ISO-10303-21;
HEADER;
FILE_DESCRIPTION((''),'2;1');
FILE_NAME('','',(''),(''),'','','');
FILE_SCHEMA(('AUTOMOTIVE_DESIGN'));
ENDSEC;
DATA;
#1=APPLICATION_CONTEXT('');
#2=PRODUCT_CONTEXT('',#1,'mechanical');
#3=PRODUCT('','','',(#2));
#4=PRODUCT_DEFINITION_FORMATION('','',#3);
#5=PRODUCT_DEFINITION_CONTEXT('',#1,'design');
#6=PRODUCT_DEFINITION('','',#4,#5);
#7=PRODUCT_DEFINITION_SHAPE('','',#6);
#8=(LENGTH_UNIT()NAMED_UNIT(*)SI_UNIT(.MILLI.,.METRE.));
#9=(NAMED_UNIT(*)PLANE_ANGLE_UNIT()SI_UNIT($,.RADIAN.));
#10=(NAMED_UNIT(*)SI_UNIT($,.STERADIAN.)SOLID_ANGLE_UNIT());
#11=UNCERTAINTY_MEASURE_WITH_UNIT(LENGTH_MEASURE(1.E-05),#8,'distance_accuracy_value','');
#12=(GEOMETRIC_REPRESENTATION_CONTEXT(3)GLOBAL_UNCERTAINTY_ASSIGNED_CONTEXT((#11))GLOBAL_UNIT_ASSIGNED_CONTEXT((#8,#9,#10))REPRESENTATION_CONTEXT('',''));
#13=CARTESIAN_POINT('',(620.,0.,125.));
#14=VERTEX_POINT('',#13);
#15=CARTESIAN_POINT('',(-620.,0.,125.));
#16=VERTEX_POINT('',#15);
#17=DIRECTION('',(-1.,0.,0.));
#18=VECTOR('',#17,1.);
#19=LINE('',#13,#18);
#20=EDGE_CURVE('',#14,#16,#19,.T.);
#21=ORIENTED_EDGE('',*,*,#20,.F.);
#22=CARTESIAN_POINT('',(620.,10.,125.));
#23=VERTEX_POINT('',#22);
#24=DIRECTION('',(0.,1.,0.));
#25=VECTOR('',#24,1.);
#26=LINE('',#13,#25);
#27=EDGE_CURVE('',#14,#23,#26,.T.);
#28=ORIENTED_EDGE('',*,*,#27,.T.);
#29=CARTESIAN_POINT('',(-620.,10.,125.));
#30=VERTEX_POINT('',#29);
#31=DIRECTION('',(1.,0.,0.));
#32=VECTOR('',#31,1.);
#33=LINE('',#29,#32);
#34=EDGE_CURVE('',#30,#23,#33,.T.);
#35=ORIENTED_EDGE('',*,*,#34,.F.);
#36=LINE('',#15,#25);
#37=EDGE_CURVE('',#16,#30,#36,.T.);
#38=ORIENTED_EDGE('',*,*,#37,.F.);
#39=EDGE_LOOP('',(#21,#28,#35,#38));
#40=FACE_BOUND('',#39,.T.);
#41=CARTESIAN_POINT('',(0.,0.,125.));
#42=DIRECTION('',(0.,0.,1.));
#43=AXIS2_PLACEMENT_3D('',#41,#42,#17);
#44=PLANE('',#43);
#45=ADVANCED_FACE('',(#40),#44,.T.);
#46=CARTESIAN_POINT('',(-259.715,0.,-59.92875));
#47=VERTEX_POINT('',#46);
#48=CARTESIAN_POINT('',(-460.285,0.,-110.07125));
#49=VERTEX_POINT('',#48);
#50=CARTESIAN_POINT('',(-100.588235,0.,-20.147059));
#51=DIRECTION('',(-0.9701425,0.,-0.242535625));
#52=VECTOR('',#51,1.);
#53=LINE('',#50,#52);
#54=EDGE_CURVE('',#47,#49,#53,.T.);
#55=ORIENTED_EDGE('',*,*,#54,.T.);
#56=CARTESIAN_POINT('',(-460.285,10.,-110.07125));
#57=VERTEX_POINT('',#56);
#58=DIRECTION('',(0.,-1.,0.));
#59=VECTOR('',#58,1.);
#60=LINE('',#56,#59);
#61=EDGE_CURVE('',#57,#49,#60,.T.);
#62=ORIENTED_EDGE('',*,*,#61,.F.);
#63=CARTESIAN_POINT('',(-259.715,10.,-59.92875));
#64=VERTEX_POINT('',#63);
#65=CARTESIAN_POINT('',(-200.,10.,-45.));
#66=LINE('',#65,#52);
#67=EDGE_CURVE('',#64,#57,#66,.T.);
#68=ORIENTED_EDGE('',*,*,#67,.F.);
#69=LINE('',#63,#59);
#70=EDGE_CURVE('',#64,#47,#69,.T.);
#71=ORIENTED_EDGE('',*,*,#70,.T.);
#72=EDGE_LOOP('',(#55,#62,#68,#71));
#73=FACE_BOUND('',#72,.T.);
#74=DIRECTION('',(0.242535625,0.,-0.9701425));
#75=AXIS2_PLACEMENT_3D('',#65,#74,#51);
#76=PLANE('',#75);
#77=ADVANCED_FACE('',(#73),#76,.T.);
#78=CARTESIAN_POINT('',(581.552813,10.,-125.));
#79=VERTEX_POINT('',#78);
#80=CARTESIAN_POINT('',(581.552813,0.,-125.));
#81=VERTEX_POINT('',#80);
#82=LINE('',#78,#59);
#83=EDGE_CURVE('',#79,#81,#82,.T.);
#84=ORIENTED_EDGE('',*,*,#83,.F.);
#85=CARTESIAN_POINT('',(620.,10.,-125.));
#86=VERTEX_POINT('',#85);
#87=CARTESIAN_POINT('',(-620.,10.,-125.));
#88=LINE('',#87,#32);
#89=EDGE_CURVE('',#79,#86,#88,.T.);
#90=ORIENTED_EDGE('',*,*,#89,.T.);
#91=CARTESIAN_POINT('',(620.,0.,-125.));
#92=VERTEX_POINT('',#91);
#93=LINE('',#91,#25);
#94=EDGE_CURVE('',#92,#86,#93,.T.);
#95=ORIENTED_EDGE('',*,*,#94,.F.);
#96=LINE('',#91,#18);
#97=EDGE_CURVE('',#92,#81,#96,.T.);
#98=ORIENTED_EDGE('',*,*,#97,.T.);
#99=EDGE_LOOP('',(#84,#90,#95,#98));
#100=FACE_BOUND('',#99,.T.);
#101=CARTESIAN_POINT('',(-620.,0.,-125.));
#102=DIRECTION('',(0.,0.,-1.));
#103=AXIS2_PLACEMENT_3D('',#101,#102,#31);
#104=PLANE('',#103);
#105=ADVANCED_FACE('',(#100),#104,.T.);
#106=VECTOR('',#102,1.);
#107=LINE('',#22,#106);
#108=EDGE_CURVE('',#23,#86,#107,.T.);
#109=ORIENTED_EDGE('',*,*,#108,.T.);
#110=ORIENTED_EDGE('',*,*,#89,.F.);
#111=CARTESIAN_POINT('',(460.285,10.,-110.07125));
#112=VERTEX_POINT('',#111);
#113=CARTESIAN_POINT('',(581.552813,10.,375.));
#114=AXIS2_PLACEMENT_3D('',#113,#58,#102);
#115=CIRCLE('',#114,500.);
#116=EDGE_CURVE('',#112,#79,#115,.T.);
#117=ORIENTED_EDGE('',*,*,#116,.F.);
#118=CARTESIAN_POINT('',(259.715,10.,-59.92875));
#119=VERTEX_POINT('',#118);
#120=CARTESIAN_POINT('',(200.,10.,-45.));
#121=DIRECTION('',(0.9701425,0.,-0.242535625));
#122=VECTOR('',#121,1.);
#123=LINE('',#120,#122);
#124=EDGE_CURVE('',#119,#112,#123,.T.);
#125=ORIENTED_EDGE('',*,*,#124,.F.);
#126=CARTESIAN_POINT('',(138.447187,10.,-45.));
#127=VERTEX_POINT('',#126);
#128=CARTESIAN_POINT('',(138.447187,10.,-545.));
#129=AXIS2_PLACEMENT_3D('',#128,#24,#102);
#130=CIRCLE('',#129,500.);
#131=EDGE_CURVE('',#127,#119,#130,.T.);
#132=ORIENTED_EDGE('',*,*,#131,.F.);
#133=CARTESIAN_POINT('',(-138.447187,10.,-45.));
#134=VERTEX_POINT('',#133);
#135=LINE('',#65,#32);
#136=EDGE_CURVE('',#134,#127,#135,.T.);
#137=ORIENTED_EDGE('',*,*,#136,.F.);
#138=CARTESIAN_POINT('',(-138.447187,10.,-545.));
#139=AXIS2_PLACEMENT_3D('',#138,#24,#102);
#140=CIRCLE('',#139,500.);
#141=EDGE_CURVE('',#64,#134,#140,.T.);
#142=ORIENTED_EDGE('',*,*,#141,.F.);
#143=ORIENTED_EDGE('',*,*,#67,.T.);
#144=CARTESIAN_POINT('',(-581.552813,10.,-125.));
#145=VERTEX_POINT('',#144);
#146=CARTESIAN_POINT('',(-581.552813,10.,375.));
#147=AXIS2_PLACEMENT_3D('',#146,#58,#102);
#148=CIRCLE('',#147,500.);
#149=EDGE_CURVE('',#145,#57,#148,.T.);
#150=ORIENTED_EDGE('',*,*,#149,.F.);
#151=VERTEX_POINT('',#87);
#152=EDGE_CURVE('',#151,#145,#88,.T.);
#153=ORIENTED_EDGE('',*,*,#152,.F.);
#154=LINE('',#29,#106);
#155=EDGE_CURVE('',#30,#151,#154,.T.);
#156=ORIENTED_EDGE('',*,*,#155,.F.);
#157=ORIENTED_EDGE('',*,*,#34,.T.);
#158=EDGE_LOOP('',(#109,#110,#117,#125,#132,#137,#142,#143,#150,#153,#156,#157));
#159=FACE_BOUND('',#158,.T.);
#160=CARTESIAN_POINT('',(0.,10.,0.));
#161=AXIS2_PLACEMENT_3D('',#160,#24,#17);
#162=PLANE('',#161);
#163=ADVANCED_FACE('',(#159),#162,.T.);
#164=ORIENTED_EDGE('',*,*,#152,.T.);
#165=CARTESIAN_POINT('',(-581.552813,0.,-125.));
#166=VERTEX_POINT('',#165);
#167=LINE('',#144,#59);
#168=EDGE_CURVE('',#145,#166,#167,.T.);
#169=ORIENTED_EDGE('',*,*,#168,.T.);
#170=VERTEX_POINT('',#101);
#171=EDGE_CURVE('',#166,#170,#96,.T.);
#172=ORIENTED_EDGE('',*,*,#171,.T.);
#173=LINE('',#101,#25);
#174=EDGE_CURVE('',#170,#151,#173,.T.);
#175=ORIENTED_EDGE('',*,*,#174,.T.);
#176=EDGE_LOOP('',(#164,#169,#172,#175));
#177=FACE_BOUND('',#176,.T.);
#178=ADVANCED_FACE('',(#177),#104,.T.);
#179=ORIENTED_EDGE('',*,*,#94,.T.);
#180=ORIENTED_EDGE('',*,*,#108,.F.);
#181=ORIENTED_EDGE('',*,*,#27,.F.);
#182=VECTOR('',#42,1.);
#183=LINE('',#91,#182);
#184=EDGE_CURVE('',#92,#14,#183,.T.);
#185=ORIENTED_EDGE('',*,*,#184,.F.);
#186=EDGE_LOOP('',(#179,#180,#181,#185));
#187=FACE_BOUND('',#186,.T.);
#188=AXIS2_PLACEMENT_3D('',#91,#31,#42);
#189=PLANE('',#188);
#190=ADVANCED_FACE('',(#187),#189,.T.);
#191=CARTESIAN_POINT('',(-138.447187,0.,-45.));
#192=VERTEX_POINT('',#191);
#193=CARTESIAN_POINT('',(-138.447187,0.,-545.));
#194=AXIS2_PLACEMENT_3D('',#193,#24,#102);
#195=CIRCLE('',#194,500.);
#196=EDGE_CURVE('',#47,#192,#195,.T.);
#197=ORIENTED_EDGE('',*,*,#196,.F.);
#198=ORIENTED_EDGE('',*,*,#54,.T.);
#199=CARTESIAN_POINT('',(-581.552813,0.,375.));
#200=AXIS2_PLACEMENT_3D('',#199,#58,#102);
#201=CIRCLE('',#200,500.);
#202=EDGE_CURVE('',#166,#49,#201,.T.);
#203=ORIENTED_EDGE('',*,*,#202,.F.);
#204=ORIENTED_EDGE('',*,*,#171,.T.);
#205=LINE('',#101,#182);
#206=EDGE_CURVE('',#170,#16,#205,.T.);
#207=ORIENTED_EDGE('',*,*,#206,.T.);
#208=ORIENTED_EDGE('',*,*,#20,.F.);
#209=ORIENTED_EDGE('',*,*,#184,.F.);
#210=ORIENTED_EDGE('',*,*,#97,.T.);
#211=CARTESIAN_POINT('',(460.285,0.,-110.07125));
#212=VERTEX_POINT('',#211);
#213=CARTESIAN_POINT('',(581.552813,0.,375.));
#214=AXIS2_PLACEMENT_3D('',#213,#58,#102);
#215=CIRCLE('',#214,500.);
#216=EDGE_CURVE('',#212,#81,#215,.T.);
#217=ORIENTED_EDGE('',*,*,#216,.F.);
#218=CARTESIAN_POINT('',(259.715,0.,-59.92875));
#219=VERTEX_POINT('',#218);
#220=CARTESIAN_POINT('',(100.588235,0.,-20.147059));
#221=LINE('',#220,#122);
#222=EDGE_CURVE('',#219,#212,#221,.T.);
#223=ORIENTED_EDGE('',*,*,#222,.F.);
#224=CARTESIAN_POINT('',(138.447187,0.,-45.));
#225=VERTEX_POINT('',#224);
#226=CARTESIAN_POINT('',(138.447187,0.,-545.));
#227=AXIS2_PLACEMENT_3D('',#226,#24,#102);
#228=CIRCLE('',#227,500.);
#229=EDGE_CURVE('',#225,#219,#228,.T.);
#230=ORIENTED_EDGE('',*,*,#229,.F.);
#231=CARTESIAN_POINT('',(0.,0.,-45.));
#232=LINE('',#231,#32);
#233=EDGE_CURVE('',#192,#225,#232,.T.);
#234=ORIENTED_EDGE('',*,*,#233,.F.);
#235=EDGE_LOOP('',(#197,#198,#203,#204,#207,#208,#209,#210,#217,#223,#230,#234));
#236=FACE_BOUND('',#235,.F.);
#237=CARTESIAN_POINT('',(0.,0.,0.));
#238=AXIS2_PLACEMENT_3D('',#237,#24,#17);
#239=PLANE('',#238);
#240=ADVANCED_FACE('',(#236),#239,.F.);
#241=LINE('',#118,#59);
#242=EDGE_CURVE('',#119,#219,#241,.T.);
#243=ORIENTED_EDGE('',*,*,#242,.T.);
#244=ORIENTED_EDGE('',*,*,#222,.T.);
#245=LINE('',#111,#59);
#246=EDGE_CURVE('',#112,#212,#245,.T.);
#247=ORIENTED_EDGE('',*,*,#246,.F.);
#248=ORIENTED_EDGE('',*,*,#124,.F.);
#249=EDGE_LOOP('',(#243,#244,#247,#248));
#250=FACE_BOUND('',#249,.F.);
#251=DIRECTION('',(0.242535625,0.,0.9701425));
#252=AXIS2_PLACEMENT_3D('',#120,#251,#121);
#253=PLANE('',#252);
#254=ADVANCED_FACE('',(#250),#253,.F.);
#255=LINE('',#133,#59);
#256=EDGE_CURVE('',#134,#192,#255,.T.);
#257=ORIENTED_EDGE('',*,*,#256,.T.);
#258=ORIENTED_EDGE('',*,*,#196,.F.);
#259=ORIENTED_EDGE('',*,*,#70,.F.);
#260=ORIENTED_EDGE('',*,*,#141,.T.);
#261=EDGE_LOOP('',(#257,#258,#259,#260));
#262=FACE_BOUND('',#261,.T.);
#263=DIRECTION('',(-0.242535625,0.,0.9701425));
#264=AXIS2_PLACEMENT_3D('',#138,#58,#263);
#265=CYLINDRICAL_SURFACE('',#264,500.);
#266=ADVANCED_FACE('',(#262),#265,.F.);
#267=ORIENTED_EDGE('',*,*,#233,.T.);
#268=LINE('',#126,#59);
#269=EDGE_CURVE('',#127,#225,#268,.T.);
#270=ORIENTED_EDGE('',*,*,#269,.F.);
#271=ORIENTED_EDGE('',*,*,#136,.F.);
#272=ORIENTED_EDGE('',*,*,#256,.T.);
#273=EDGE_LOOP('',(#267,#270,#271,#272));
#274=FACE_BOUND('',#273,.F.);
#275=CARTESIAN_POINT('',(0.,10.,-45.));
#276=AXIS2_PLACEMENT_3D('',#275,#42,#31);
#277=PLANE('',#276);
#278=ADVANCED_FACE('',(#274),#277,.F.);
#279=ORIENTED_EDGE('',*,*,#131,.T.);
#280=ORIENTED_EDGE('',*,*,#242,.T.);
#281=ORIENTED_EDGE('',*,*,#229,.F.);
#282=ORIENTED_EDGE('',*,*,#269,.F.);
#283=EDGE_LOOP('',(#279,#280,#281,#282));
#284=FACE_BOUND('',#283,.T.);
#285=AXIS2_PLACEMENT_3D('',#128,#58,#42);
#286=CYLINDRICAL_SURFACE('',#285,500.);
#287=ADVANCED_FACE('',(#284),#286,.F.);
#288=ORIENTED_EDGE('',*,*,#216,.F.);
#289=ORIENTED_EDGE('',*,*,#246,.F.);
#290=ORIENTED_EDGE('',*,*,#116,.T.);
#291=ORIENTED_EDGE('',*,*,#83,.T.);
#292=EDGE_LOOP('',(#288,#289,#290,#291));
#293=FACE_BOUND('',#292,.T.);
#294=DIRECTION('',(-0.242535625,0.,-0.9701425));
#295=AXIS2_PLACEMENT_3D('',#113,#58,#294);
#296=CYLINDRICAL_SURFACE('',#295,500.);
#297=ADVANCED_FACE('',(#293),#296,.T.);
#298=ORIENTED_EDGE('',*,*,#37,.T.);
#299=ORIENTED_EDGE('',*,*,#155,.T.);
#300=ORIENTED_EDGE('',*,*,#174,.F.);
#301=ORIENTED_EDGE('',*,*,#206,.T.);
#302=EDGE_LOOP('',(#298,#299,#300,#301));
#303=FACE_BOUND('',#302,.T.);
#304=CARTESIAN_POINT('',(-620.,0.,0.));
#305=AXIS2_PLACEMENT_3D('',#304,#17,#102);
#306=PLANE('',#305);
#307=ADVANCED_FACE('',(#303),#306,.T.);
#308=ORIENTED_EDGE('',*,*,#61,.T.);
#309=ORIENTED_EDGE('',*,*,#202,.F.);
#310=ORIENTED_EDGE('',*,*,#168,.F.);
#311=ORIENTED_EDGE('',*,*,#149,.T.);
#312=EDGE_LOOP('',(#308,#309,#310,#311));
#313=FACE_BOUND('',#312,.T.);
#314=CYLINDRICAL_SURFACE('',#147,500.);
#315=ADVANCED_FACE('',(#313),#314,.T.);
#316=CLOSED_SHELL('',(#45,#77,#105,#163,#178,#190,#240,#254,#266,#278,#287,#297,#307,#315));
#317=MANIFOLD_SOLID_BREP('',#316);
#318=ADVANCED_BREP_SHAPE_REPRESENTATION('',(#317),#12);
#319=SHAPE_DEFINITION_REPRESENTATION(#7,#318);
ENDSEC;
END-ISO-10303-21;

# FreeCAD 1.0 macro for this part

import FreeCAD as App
import Part
import Sketcher

V = App.Vector
Q = App.Units.Quantity


def edges_at(feature, points):
    """Names of the edges that pass closest to the given points."""
    edges = feature.Shape.Edges
    near = lambda p: min(range(len(edges)), key=lambda i: edges[i].distToShape(Part.Vertex(*p))[0])
    return sorted({f"Edge{near(p) + 1}" for p in points})


def add_polygon(sketch, points):
    """Adds a closed chain of lines whose ends are joined by coincident constraints."""
    first, n = sketch.GeometryCount, len(points)
    for a, b in zip(points, points[1:] + points[:1]):
        sketch.addGeometry(Part.LineSegment(App.Vector(*a, 0), App.Vector(*b, 0)), False)
    for i in range(n):
        sketch.addConstraint(Sketcher.Constraint("Coincident", first + i, 2, first + (i + 1) % n, 1))

doc = App.newDocument("Part")
body = doc.addObject("PartDesign::Body", "Body")

# Sketch on XZ plane
sketch1 = doc.addObject("Sketcher::SketchObject", "Sketch")
body.addObject(sketch1)
sketch1.AttachmentSupport = (doc.XZ_Plane, [""])
sketch1.MapMode = "FlatFace"
add_polygon(sketch1, [(-620, -125), (-620, 125), (620, 125), (620, -125)])  # lines 0-3
sketch1.addConstraint([
    Sketcher.Constraint("Vertical", 0),
    Sketcher.Constraint("Horizontal", 1),
    Sketcher.Constraint("Vertical", 2),
    Sketcher.Constraint("Horizontal", 3),
    Sketcher.Constraint("Symmetric", 0, 2, 2, 2, -1, 1),
    Sketcher.Constraint("DistanceX", 1, 1, 1, 2, Q("1240 mm")),
    Sketcher.Constraint("DistanceY", 0, 1, 0, 2, Q("250 mm")),
])
pad1 = doc.addObject("PartDesign::Pad", "Pad")
body.addObject(pad1)
pad1.Profile = sketch1
pad1.Length = 10
pad1.Reversed = True

# Sketch on XZ plane
sketch2 = doc.addObject("Sketcher::SketchObject", "Sketch001")
body.addObject(sketch2)
sketch2.AttachmentSupport = (doc.XZ_Plane, [""])
sketch2.MapMode = "FlatFace"
sketch2.AttachmentOffset = App.Placement(V(0, 0, -10), App.Rotation())
add_polygon(sketch2, [(520, -125), (-520, -125), (-200, -45), (200, -45)])  # lines 0-3
sketch2.addConstraint([
    Sketcher.Constraint("Horizontal", 0),
    Sketcher.Constraint("Horizontal", 2),
    Sketcher.Constraint("Equal", 1, 3),
    Sketcher.Constraint("DistanceX", 1, 2, -1, 1, Q("200 mm")),
    Sketcher.Constraint("DistanceX", -1, 1, 2, 2, Q("200 mm")),
    Sketcher.Constraint("DistanceX", 0, 2, 0, 1, Q("1040 mm")),
    Sketcher.Constraint("DistanceY", 0, 2, -1, 1, Q("125 mm")),
    Sketcher.Constraint("DistanceY", 1, 2, -1, 1, Q("45 mm")),
])
pocket1 = doc.addObject("PartDesign::Pocket", "Pocket")
body.addObject(pocket1)
pocket1.Profile = sketch2
pocket1.Type = "ThroughAll"
pocket1.Reversed = True
doc.recompute()

fillet = doc.addObject("PartDesign::Fillet", "Fillet")
body.addObject(fillet)
fillet.Base = (pocket1, edges_at(pocket1, [
    (-520, 5, -125),
    (-200, 5, -45),
    (200, 5, -45),
    (520, 5, -125),
]))
fillet.Radius = 500

doc.recompute()
